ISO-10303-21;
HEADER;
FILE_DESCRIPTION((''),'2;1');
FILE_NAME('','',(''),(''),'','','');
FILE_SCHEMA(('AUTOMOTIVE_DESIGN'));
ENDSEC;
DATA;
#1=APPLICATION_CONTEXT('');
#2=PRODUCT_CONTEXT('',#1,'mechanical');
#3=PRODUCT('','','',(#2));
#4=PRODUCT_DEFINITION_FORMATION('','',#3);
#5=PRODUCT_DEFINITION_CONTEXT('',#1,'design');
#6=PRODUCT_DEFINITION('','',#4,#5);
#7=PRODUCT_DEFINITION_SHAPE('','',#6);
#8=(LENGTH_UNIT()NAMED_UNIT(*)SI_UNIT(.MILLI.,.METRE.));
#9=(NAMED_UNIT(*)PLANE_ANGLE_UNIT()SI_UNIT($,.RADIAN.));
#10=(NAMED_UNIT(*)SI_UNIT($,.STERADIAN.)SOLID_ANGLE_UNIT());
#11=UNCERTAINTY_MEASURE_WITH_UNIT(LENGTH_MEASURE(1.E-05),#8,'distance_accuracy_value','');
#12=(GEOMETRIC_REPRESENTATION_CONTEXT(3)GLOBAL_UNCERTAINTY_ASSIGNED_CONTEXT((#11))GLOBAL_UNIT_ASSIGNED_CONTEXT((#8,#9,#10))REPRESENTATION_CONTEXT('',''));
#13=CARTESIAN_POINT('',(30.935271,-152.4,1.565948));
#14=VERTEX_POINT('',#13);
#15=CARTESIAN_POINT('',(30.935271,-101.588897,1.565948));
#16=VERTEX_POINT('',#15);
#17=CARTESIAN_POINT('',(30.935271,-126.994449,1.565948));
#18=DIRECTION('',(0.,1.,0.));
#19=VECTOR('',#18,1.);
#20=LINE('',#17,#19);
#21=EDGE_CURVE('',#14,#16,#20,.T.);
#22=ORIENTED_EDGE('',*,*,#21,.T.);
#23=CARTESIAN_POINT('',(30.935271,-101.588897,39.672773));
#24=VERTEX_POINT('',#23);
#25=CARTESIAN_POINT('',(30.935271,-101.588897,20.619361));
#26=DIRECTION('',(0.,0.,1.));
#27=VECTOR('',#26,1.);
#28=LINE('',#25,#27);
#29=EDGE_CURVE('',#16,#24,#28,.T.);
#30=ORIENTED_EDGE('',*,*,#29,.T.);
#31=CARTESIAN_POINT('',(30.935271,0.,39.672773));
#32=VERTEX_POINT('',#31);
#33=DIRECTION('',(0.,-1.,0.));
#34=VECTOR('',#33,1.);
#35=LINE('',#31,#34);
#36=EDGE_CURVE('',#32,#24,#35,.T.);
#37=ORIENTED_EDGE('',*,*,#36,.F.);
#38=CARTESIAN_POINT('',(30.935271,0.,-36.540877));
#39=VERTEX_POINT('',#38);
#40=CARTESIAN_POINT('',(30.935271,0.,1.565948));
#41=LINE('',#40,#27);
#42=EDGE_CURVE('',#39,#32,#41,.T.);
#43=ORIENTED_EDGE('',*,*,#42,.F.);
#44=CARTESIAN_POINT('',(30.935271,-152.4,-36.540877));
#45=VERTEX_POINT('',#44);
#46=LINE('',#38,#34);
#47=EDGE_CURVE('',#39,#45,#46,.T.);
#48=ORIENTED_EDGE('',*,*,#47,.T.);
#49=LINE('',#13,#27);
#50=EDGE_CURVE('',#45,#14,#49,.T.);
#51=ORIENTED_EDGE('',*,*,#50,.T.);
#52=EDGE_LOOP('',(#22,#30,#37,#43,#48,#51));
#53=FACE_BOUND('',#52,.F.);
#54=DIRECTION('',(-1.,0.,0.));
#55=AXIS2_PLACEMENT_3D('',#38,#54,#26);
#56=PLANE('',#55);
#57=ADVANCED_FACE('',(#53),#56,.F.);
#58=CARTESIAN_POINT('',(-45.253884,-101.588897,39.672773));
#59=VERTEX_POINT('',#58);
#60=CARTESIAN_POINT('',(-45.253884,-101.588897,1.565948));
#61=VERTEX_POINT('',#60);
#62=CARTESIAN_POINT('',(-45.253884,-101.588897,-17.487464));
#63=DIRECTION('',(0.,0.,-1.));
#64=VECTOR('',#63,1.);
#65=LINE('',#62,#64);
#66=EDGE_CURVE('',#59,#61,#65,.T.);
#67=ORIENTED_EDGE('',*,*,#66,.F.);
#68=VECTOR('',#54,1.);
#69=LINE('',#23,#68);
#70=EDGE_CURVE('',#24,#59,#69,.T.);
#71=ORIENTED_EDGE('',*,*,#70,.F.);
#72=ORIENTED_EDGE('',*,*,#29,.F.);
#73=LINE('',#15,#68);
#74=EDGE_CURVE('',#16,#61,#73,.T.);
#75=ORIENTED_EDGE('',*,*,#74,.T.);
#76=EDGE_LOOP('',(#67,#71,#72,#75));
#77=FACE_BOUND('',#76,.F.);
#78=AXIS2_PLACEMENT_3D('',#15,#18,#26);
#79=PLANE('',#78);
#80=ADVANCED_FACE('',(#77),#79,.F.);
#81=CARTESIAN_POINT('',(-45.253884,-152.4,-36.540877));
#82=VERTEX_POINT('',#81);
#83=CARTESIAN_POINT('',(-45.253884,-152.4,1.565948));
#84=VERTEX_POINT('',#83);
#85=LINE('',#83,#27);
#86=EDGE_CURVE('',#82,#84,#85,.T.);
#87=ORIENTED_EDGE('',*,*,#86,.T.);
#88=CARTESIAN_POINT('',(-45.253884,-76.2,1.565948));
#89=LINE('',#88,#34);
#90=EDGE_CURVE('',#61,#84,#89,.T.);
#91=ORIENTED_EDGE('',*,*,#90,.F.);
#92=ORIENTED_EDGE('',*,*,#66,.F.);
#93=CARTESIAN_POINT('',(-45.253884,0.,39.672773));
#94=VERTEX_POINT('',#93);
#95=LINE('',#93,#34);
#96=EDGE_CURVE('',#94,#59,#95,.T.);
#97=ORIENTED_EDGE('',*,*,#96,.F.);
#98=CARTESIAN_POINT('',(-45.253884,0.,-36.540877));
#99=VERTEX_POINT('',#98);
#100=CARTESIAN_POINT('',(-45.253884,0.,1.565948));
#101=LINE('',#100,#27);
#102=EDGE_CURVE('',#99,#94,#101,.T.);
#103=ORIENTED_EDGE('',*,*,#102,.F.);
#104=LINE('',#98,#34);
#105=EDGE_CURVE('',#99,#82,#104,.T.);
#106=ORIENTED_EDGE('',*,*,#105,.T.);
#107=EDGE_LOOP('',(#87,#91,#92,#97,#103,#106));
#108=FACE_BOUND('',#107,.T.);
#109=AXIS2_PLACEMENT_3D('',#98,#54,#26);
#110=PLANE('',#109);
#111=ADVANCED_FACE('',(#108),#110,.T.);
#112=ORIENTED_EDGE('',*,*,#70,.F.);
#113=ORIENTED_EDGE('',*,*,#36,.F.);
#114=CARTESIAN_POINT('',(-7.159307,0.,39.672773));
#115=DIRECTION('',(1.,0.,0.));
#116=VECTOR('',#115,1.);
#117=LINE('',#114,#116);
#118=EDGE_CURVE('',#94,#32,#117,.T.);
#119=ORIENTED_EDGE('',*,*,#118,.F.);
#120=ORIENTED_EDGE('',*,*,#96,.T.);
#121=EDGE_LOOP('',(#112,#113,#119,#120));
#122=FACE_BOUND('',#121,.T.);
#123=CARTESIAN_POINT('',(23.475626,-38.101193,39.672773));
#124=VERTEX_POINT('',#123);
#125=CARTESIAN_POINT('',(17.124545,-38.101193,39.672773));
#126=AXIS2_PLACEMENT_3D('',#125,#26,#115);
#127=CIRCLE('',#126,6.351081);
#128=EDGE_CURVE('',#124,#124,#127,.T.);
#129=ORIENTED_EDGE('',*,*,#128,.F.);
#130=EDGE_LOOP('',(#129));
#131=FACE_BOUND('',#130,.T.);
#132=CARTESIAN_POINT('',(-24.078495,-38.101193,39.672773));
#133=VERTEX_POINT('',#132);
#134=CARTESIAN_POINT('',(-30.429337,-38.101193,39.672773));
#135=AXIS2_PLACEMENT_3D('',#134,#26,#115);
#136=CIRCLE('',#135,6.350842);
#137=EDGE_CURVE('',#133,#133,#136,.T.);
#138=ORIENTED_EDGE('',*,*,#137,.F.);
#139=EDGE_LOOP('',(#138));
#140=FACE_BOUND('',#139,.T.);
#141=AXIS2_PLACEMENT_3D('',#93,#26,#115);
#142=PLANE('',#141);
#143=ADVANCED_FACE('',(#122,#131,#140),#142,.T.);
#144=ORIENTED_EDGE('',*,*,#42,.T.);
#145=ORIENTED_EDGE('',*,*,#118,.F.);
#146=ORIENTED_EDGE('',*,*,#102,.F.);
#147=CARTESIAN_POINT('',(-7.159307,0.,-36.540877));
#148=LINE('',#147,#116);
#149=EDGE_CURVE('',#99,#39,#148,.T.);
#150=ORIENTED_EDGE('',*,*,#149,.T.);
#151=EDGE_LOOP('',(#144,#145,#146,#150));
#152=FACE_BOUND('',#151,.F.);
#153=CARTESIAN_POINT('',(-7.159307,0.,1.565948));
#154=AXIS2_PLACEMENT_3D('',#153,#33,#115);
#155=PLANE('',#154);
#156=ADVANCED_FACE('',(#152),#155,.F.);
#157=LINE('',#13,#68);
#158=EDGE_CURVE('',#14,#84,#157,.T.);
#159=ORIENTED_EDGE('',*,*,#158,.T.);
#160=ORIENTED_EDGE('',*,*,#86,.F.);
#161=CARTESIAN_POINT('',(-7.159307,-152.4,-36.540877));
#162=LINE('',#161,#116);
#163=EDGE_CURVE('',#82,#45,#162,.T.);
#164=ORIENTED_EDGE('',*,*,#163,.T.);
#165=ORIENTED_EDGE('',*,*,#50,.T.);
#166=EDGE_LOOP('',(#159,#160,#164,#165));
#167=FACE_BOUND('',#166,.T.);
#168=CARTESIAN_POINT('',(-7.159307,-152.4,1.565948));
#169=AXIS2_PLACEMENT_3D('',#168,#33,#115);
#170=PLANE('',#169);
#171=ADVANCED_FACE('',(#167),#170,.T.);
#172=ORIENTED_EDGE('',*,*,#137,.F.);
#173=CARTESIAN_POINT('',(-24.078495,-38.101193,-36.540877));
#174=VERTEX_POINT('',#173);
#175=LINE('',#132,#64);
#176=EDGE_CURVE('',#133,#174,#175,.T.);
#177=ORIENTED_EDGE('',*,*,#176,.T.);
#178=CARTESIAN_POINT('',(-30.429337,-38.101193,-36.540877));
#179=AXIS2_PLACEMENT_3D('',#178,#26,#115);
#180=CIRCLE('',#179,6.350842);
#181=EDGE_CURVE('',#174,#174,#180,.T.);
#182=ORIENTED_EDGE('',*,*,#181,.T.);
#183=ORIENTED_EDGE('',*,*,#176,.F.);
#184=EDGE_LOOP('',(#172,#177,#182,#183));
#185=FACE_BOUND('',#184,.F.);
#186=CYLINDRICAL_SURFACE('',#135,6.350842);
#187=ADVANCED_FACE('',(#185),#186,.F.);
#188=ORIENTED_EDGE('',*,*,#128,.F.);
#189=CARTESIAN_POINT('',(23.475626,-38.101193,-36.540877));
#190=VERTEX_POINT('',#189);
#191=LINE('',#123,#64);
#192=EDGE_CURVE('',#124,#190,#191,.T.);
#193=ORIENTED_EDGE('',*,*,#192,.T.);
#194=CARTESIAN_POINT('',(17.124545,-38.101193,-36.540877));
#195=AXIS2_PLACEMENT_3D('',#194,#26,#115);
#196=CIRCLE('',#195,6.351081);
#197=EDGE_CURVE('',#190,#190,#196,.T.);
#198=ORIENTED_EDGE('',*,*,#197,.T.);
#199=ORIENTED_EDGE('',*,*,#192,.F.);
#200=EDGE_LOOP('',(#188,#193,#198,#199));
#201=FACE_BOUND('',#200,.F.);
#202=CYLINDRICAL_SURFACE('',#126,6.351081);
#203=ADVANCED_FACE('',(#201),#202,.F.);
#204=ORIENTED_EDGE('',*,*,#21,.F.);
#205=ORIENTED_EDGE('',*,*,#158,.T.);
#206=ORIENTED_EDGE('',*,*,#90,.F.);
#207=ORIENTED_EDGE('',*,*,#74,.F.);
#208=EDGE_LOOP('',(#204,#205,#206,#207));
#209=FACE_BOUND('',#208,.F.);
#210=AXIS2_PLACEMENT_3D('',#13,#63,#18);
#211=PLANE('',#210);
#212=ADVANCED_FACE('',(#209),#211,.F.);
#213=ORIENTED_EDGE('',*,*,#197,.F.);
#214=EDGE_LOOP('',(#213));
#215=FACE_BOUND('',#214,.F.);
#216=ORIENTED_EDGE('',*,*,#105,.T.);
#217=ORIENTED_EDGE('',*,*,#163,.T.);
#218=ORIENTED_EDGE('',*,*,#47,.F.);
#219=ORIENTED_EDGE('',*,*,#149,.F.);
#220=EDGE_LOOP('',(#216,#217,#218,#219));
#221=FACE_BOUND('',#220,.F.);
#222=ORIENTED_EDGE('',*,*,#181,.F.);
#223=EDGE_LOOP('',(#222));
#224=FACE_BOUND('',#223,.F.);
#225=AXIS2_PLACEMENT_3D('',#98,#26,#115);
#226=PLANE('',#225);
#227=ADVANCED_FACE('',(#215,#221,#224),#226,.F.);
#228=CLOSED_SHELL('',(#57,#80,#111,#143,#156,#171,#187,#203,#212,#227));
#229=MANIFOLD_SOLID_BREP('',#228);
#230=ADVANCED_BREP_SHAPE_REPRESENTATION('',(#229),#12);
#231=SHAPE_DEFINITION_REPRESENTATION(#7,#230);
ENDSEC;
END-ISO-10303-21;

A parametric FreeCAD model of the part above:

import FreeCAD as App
import Part
import Sketcher

V = App.Vector
Q = App.Units.Quantity

doc = App.newDocument("Part")
body = doc.addObject("PartDesign::Body", "Body")

# Sketch on XZ plane
sketch1 = doc.addObject("Sketcher::SketchObject", "Sketch")
body.addObject(sketch1)
sketch1.AttachmentSupport = (doc.XZ_Plane, [""])
sketch1.MapMode = "FlatFace"
sketch1.addGeometry(Part.LineSegment(V(-45, 40, 0), V(-45, -37, 0)), False)
sketch1.addGeometry(Part.LineSegment(V(-45, -37, 0), V(31, -37, 0)), False)
sketch1.addGeometry(Part.LineSegment(V(31, -37, 0), V(31, 40, 0)), False)
sketch1.addGeometry(Part.LineSegment(V(31, 40, 0), V(-45, 40, 0)), False)
sketch1.addConstraint(Sketcher.Constraint("Coincident", 0, 2, 1, 1))
sketch1.addConstraint(Sketcher.Constraint("Coincident", 1, 2, 2, 1))
sketch1.addConstraint(Sketcher.Constraint("Coincident", 2, 2, 3, 1))
sketch1.addConstraint(Sketcher.Constraint("Coincident", 3, 2, 0, 1))
sketch1.addConstraint(Sketcher.Constraint("Vertical", 0))
sketch1.addConstraint(Sketcher.Constraint("Horizontal", 1))
sketch1.addConstraint(Sketcher.Constraint("Vertical", 2))
sketch1.addConstraint(Sketcher.Constraint("Horizontal", 3))
sketch1.addConstraint(Sketcher.Constraint("DistanceY", 0, 2, 0, 1, Q("76.21365 mm")))
sketch1.addConstraint(Sketcher.Constraint("DistanceX", 1, 1, 1, 2, Q("76.189155 mm")))
sketch1.addConstraint(Sketcher.Constraint("DistanceX", -1, 1, 1, 2, Q("30.935271 mm")))
sketch1.addConstraint(Sketcher.Constraint("DistanceY", 0, 2, -1, 1, Q("36.540877 mm")))
pad1 = doc.addObject("PartDesign::Pad", "Pad")
body.addObject(pad1)
pad1.Profile = sketch1
pad1.Length = Q("6 in")

# Sketch on YZ plane
sketch2 = doc.addObject("Sketcher::SketchObject", "Sketch001")
body.addObject(sketch2)
sketch2.AttachmentSupport = (doc.YZ_Plane, [""])
sketch2.MapMode = "FlatFace"
sketch2.AttachmentOffset = App.Placement(V(0, 0, 30.935271), App.Rotation())
sketch2.addGeometry(Part.LineSegment(V(-152, 40, 0), V(-152, 2, 0)), False)
sketch2.addGeometry(Part.LineSegment(V(-152, 2, 0), V(-102, 2, 0)), False)
sketch2.addGeometry(Part.LineSegment(V(-102, 2, 0), V(-102, 40, 0)), False)
sketch2.addGeometry(Part.LineSegment(V(-102, 40, 0), V(-152, 40, 0)), False)
sketch2.addConstraint(Sketcher.Constraint("Coincident", 0, 2, 1, 1))
sketch2.addConstraint(Sketcher.Constraint("Coincident", 1, 2, 2, 1))
sketch2.addConstraint(Sketcher.Constraint("Coincident", 2, 2, 3, 1))
sketch2.addConstraint(Sketcher.Constraint("Coincident", 3, 2, 0, 1))
sketch2.addConstraint(Sketcher.Constraint("Vertical", 0))
sketch2.addConstraint(Sketcher.Constraint("Horizontal", 1))
sketch2.addConstraint(Sketcher.Constraint("Vertical", 2))
sketch2.addConstraint(Sketcher.Constraint("Horizontal", 3))
sketch2.addConstraint(Sketcher.Constraint("DistanceX", 0, 2, -1, 1, Q("6 in")))
sketch2.addConstraint(Sketcher.Constraint("DistanceX", 1, 1, 1, 2, Q("50.811103 mm")))
sketch2.addConstraint(Sketcher.Constraint("DistanceY", 0, 2, 0, 1, Q("38.106825 mm")))
sketch2.addConstraint(Sketcher.Constraint("DistanceY", -1, 1, 0, 2, Q("1.565948 mm")))
pocket1 = doc.addObject("PartDesign::Pocket", "Pocket")
body.addObject(pocket1)
pocket1.Profile = sketch2
pocket1.Length = Q("3 in")

# Sketch on XY plane
sketch3 = doc.addObject("Sketcher::SketchObject", "Sketch002")
body.addObject(sketch3)
sketch3.AttachmentSupport = (doc.XY_Plane, [""])
sketch3.MapMode = "FlatFace"
sketch3.AttachmentOffset = App.Placement(V(0, 0, 39.672773), App.Rotation())
sketch3.addGeometry(Part.Circle(V(-30, -38, 0), V(0, 0, 1), 6), False)
sketch3.addGeometry(Part.Circle(V(17, -38, 0), V(0, 0, 1), 6), False)
sketch3.addConstraint(Sketcher.Constraint("Horizontal", 0, 3, 1, 3))
sketch3.addConstraint(Sketcher.Constraint("Diameter", 0, Q("12.701684 mm")))
sketch3.addConstraint(Sketcher.Constraint("Diameter", 1, Q("12.702162 mm")))
sketch3.addConstraint(Sketcher.Constraint("DistanceX", 0, 3, 1, 3, Q("1.8722001 in")))
sketch3.addConstraint(Sketcher.Constraint("DistanceX", 0, 3, -1, 1, Q("30.429337 mm")))
sketch3.addConstraint(Sketcher.Constraint("DistanceY", 0, 3, -1, 1, Q("38.101193 mm")))
pocket2 = doc.addObject("PartDesign::Pocket", "Pocket001")
body.addObject(pocket2)
pocket2.Profile = sketch3
pocket2.Length = Q("4 in")

doc.recompute()
